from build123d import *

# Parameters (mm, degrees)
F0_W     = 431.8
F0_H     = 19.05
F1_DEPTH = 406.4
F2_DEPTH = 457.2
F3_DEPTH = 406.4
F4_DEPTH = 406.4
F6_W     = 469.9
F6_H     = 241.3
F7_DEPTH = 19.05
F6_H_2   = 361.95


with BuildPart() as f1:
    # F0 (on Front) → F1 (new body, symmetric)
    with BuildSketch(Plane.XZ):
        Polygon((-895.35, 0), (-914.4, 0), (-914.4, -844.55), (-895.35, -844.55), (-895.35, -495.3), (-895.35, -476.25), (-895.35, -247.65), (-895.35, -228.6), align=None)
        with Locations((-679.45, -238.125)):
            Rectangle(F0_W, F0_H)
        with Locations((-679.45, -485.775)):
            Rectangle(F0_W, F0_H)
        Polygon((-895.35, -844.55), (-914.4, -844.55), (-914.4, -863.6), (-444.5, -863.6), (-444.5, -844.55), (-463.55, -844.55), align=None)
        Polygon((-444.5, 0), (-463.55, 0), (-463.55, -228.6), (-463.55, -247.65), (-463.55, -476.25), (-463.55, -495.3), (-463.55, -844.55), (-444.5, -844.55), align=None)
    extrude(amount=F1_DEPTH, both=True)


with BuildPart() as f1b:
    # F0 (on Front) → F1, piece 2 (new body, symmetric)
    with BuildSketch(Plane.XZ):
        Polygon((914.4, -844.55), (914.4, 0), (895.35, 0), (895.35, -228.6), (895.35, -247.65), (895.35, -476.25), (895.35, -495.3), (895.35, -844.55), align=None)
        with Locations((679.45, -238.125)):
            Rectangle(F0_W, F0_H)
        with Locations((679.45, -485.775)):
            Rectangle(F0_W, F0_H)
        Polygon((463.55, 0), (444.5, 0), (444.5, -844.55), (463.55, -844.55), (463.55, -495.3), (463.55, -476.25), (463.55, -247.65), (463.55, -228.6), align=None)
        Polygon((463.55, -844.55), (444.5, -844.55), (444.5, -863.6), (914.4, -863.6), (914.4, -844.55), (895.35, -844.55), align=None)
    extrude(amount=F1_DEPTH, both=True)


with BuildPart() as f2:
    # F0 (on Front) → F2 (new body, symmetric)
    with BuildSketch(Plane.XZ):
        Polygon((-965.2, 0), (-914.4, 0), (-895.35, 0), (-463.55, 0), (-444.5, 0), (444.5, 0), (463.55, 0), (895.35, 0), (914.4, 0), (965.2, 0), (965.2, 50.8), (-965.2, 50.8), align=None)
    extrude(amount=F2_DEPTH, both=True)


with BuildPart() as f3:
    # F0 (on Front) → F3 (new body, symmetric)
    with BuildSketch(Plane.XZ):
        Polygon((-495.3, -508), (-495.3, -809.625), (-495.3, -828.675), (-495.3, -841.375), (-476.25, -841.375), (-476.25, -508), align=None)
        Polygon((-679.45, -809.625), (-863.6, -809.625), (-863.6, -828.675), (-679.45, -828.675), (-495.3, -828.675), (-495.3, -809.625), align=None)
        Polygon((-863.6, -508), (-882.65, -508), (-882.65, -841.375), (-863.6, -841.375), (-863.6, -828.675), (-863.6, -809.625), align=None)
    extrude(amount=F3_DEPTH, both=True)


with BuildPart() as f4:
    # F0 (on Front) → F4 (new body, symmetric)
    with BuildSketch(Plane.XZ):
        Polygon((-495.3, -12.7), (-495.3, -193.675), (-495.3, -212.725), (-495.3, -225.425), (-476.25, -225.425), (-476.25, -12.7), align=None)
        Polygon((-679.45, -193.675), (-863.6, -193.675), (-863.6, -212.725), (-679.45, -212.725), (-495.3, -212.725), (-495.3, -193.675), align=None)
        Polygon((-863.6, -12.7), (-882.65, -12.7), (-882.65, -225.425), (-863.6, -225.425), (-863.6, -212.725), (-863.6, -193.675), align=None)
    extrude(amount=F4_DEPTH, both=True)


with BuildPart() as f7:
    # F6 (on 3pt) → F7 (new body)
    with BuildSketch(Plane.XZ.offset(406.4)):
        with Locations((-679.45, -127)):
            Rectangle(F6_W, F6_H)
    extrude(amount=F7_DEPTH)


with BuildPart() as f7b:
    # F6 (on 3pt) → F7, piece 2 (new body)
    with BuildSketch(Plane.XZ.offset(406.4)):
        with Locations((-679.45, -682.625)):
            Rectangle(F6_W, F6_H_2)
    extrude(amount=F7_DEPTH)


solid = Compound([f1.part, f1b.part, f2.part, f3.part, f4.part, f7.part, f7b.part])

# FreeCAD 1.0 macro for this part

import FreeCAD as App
import Part
import Sketcher
Q = App.Units.Quantity


def add_polygon(sketch, points):
    """Adds a closed chain of lines whose ends are joined by coincident constraints."""
    first, n = sketch.GeometryCount, len(points)
    for a, b in zip(points, points[1:] + points[:1]):
        sketch.addGeometry(Part.LineSegment(App.Vector(*a, 0), App.Vector(*b, 0)), False)
    for i in range(n):
        sketch.addConstraint(Sketcher.Constraint("Coincident", first + i, 2, first + (i + 1) % n, 1))

doc = App.newDocument("Part")
params = doc.addObject("Spreadsheet::Sheet", "Params")
for row, (alias, value) in enumerate([
    ("sketch1_width", "17 in"),
    ("sketch1_height", "34 in"),
    ("sketch1_height2", "9 in"),
    ("sketch1_width2", "18.5 in"),
    ("sketch1_height3", "13.75 in"),
    ("pad1_length", "32 in"),
    ("sketch2_width", "17 in"),
    ("sketch2_height", "9 in"),
    ("sketch2_height2", "34 in"),
    ("sketch2_width2", "18.5 in"),
    ("sketch2_height3", "13.75 in"),
    ("pad2_length", "32 in"),
    ("sketch3_width", "76 in"),
    ("sketch3_height", "2 in"),
    ("pad3_length", "36 in"),
    ("sketch4_width", "14.5 in"),
    ("sketch4_height", "0.5 in"),
    ("sketch4_width2", "0.75 in"),
    ("sketch4_height2", "11.875 in"),
    ("sketch4_height3", "13.125 in"),
    ("pad4_length", "32 in"),
    ("sketch5_width", "14.5 in"),
    ("sketch5_height", "0.5 in"),
    ("sketch5_width2", "0.75 in"),
    ("sketch5_height2", "7.125 in"),
    ("sketch5_height3", "8.375 in"),
    ("pad5_length", "32 in"),
    ("sketch6_width", "18.5 in"),
    ("sketch6_height", "9.5 in"),
    ("pad6_length", "0.75 in"),
    ("sketch7_width", "18.5 in"),
    ("sketch7_height", "14.25 in"),
    ("pad7_length", "0.75 in"),
], start=1):
    params.set(f"A{row}", alias)
    params.set(f"B{row}", "=" + value)
    params.setAlias(f"B{row}", alias)

body = doc.addObject("PartDesign::Body", "Body")

sketch1 = doc.addObject("Sketcher::SketchObject", "Sketch")
body.addObject(sketch1)
sketch1.AttachmentSupport = (doc.XZ_Plane, [""])
sketch1.MapMode = "FlatFace"
add_polygon(sketch1, [(-895, 0), (-914, 0), (-914, -864), (-444, -864), (-444, 0), (-464, 0), (-464, -229), (-895, -229)])
add_polygon(sketch1, [(-464, -845), (-895, -845), (-895, -495), (-464, -495)])
add_polygon(sketch1, [(-464, -476), (-895, -476), (-895, -248), (-464, -248)])
sketch1.addConstraint([
    Sketcher.Constraint("Horizontal", 0),
    Sketcher.Constraint("Vertical", 1),
    Sketcher.Constraint("Horizontal", 2),
    Sketcher.Constraint("Vertical", 3),
    Sketcher.Constraint("Horizontal", 4),
    Sketcher.Constraint("Vertical", 5),
    Sketcher.Constraint("Horizontal", 6),
    Sketcher.Constraint("Vertical", 7),
    Sketcher.Constraint("Horizontal", 8),
    Sketcher.Constraint("Vertical", 9),
    Sketcher.Constraint("Horizontal", 10),
    Sketcher.Constraint("Vertical", 11),
    Sketcher.Constraint("Horizontal", 12),
    Sketcher.Constraint("Vertical", 13),
    Sketcher.Constraint("Horizontal", 14),
    Sketcher.Constraint("Vertical", 15),
    Sketcher.Constraint("PointOnObject", 0, 2, -1),
    Sketcher.Constraint("PointOnObject", 3, 2, -1),
    Sketcher.Constraint("Vertical", 7, 2, 8, 2),
    Sketcher.Constraint("Vertical", 5, 2, 10, 2),
    Sketcher.Constraint("Vertical", 9, 2, 12, 2),
    Sketcher.Constraint("Vertical", 11, 2, 14, 2),
    Sketcher.Constraint("Equal", 0, 4),
    Sketcher.Constraint("Equal", 7, 13),
    Sketcher.Constraint("DistanceX", 6, 2, 6, 1, Q("17 in")),
    Sketcher.Constraint("DistanceY", 1, 2, 1, 1, Q("34 in")),
    Sketcher.Constraint("DistanceY", 5, 2, 5, 1, Q("9 in")),
    Sketcher.Constraint("DistanceX", 2, 1, 2, 2, Q("18.5 in")),
    Sketcher.Constraint("DistanceX", 0, 2, -1, 1, Q("36 in")),
    Sketcher.Constraint("DistanceY", 9, 1, 9, 2, Q("13.75 in")),
    Sketcher.Constraint("DistanceY", 9, 2, -1, 1, Q("19.5 in")),
    Sketcher.Constraint("DistanceY", 8, 2, 12, 2, Q("14.5 in")),
])
sketch1.setExpression("Constraints[40]", "Params.sketch1_width")
sketch1.setExpression("Constraints[41]", "Params.sketch1_height")
sketch1.setExpression("Constraints[42]", "Params.sketch1_height2")
sketch1.setExpression("Constraints[43]", "Params.sketch1_width2")
sketch1.setExpression("Constraints[45]", "Params.sketch1_height3")
pad1 = doc.addObject("PartDesign::Pad", "Pad")
body.addObject(pad1)
pad1.Profile = sketch1
pad1.setExpression("Length", "Params.pad1_length")
pad1.Midplane = True
body2 = doc.addObject("PartDesign::Body", "Body001")

sketch2 = doc.addObject("Sketcher::SketchObject", "Sketch001")
body2.addObject(sketch2)
sketch2.AttachmentSupport = (doc.getObject("XZ_Plane001"), [""])
sketch2.MapMode = "FlatFace"
add_polygon(sketch2, [(914, 0), (895, 0), (895, -229), (464, -229), (464, 0), (444, 0), (444, -864), (914, -864)])
add_polygon(sketch2, [(464, -845), (464, -495), (895, -495), (895, -845)])
add_polygon(sketch2, [(464, -248), (895, -248), (895, -476), (464, -476)])
sketch2.addConstraint([
    Sketcher.Constraint("Horizontal", 0),
    Sketcher.Constraint("Vertical", 1),
    Sketcher.Constraint("Horizontal", 2),
    Sketcher.Constraint("Vertical", 3),
    Sketcher.Constraint("Horizontal", 4),
    Sketcher.Constraint("Vertical", 5),
    Sketcher.Constraint("Horizontal", 6),
    Sketcher.Constraint("Vertical", 7),
    Sketcher.Constraint("Vertical", 8),
    Sketcher.Constraint("Horizontal", 9),
    Sketcher.Constraint("Vertical", 10),
    Sketcher.Constraint("Horizontal", 11),
    Sketcher.Constraint("Horizontal", 12),
    Sketcher.Constraint("Vertical", 13),
    Sketcher.Constraint("Horizontal", 14),
    Sketcher.Constraint("Vertical", 15),
    Sketcher.Constraint("PointOnObject", 0, 2, -1),
    Sketcher.Constraint("PointOnObject", 3, 2, -1),
    Sketcher.Constraint("Vertical", 3, 2, 8, 2),
    Sketcher.Constraint("Vertical", 1, 2, 9, 2),
    Sketcher.Constraint("Vertical", 10, 2, 12, 2),
    Sketcher.Constraint("Vertical", 11, 2, 14, 2),
    Sketcher.Constraint("Equal", 0, 4),
    Sketcher.Constraint("Equal", 3, 13),
    Sketcher.Constraint("DistanceX", 2, 2, 2, 1, Q("17 in")),
    Sketcher.Constraint("DistanceY", 1, 2, 1, 1, Q("9 in")),
    Sketcher.Constraint("DistanceY", 5, 2, 5, 1, Q("34 in")),
    Sketcher.Constraint("DistanceX", 6, 1, 6, 2, Q("18.5 in")),
    Sketcher.Constraint("DistanceX", -1, 1, 6, 2, Q("36 in")),
    Sketcher.Constraint("DistanceY", 8, 1, 8, 2, Q("13.75 in")),
    Sketcher.Constraint("DistanceY", 8, 2, -1, 1, Q("19.5 in")),
    Sketcher.Constraint("DistanceY", 10, 2, 13, 2, Q("14.5 in")),
])
sketch2.setExpression("Constraints[40]", "Params.sketch2_width")
sketch2.setExpression("Constraints[41]", "Params.sketch2_height")
sketch2.setExpression("Constraints[42]", "Params.sketch2_height2")
sketch2.setExpression("Constraints[43]", "Params.sketch2_width2")
sketch2.setExpression("Constraints[45]", "Params.sketch2_height3")
pad2 = doc.addObject("PartDesign::Pad", "Pad001")
body2.addObject(pad2)
pad2.Profile = sketch2
pad2.setExpression("Length", "Params.pad2_length")
pad2.Midplane = True
body3 = doc.addObject("PartDesign::Body", "Body002")

sketch3 = doc.addObject("Sketcher::SketchObject", "Sketch002")
body3.addObject(sketch3)
sketch3.AttachmentSupport = (doc.getObject("XZ_Plane002"), [""])
sketch3.MapMode = "FlatFace"
add_polygon(sketch3, [(-965, 0), (965, 0), (965, 51), (-965, 51)])
sketch3.addConstraint([
    Sketcher.Constraint("Horizontal", 0),
    Sketcher.Constraint("Vertical", 1),
    Sketcher.Constraint("Horizontal", 2),
    Sketcher.Constraint("Vertical", 3),
    Sketcher.Constraint("Symmetric", 0, 2, 3, 2, -1, 1),
    Sketcher.Constraint("DistanceX", 0, 1, 0, 2, Q("76 in")),
    Sketcher.Constraint("DistanceY", 1, 1, 1, 2, Q("2 in")),
])
sketch3.setExpression("Constraints[9]", "Params.sketch3_width")
sketch3.setExpression("Constraints[10]", "Params.sketch3_height")
pad3 = doc.addObject("PartDesign::Pad", "Pad002")
body3.addObject(pad3)
pad3.Profile = sketch3
pad3.setExpression("Length", "Params.pad3_length")
pad3.Midplane = True
body4 = doc.addObject("PartDesign::Body", "Body003")

sketch4 = doc.addObject("Sketcher::SketchObject", "Sketch003")
body4.addObject(sketch4)
sketch4.AttachmentSupport = (doc.getObject("XZ_Plane003"), [""])
sketch4.MapMode = "FlatFace"
add_polygon(sketch4, [(-495, -508), (-495, -810), (-864, -810), (-864, -508), (-883, -508), (-883, -841), (-864, -841), (-864, -829), (-495, -829), (-495, -841), (-476, -841), (-476, -508)])
sketch4.addConstraint([
    Sketcher.Constraint("Vertical", 0),
    Sketcher.Constraint("Horizontal", 1),
    Sketcher.Constraint("Vertical", 2),
    Sketcher.Constraint("Horizontal", 3),
    Sketcher.Constraint("Vertical", 4),
    Sketcher.Constraint("Horizontal", 5),
    Sketcher.Constraint("Vertical", 6),
    Sketcher.Constraint("Horizontal", 7),
    Sketcher.Constraint("Vertical", 8),
    Sketcher.Constraint("Horizontal", 9),
    Sketcher.Constraint("Vertical", 10),
    Sketcher.Constraint("Horizontal", 11),
    Sketcher.Constraint("Horizontal", 5, 2, 8, 2),
    Sketcher.Constraint("Horizontal", 3, 2, 10, 2),
    Sketcher.Constraint("Vertical", 2, 2, 5, 2),
    Sketcher.Constraint("Vertical", 0, 2, 7, 2),
    Sketcher.Constraint("Equal", 5, 9),
    Sketcher.Constraint("DistanceX", 1, 2, 1, 1, Q("14.5 in")),
    Sketcher.Constraint("DistanceY", 6, 1, 6, 2, Q("0.5 in")),
    Sketcher.Constraint("DistanceX", 1, 2, -1, 1, Q("34 in")),
    Sketcher.Constraint("DistanceY", 2, 2, -1, 1, Q("20 in")),
    Sketcher.Constraint("DistanceX", 3, 2, 3, 1, Q("0.75 in")),
    Sketcher.Constraint("DistanceY", 0, 2, 0, 1, Q("11.875 in")),
    Sketcher.Constraint("DistanceY", 4, 2, 4, 1, Q("13.125 in")),
])
sketch4.setExpression("Constraints[29]", "Params.sketch4_width")
sketch4.setExpression("Constraints[30]", "Params.sketch4_height")
sketch4.setExpression("Constraints[33]", "Params.sketch4_width2")
sketch4.setExpression("Constraints[34]", "Params.sketch4_height2")
sketch4.setExpression("Constraints[35]", "Params.sketch4_height3")
pad4 = doc.addObject("PartDesign::Pad", "Pad003")
body4.addObject(pad4)
pad4.Profile = sketch4
pad4.setExpression("Length", "Params.pad4_length")
pad4.Midplane = True
body5 = doc.addObject("PartDesign::Body", "Body004")

sketch5 = doc.addObject("Sketcher::SketchObject", "Sketch004")
body5.addObject(sketch5)
sketch5.AttachmentSupport = (doc.getObject("XZ_Plane004"), [""])
sketch5.MapMode = "FlatFace"
add_polygon(sketch5, [(-495, -13), (-495, -194), (-864, -194), (-864, -13), (-883, -13), (-883, -225), (-864, -225), (-864, -213), (-495, -213), (-495, -225), (-476, -225), (-476, -13)])
sketch5.addConstraint([
    Sketcher.Constraint("Vertical", 0),
    Sketcher.Constraint("Horizontal", 1),
    Sketcher.Constraint("Vertical", 2),
    Sketcher.Constraint("Horizontal", 3),
    Sketcher.Constraint("Vertical", 4),
    Sketcher.Constraint("Horizontal", 5),
    Sketcher.Constraint("Vertical", 6),
    Sketcher.Constraint("Horizontal", 7),
    Sketcher.Constraint("Vertical", 8),
    Sketcher.Constraint("Horizontal", 9),
    Sketcher.Constraint("Vertical", 10),
    Sketcher.Constraint("Horizontal", 11),
    Sketcher.Constraint("Horizontal", 5, 2, 8, 2),
    Sketcher.Constraint("Horizontal", 3, 2, 10, 2),
    Sketcher.Constraint("Vertical", 2, 2, 5, 2),
    Sketcher.Constraint("Vertical", 0, 2, 7, 2),
    Sketcher.Constraint("Equal", 5, 9),
    Sketcher.Constraint("DistanceX", 1, 2, 1, 1, Q("14.5 in")),
    Sketcher.Constraint("DistanceY", 6, 1, 6, 2, Q("0.5 in")),
    Sketcher.Constraint("DistanceX", 1, 2, -1, 1, Q("34 in")),
    Sketcher.Constraint("DistanceX", 3, 2, 3, 1, Q("0.75 in")),
    Sketcher.Constraint("DistanceY", 2, 2, -1, 1, Q("0.5 in")),
    Sketcher.Constraint("DistanceY", 0, 2, 0, 1, Q("7.125 in")),
    Sketcher.Constraint("DistanceY", 4, 2, 4, 1, Q("8.375 in")),
])
sketch5.setExpression("Constraints[29]", "Params.sketch5_width")
sketch5.setExpression("Constraints[30]", "Params.sketch5_height")
sketch5.setExpression("Constraints[32]", "Params.sketch5_width2")
sketch5.setExpression("Constraints[34]", "Params.sketch5_height2")
sketch5.setExpression("Constraints[35]", "Params.sketch5_height3")
pad5 = doc.addObject("PartDesign::Pad", "Pad004")
body5.addObject(pad5)
pad5.Profile = sketch5
pad5.setExpression("Length", "Params.pad5_length")
pad5.Midplane = True
body6 = doc.addObject("PartDesign::Body", "Body005")

sketch6 = doc.addObject("Sketcher::SketchObject", "Sketch005")
body6.addObject(sketch6)
sketch6.AttachmentSupport = (doc.getObject("XZ_Plane005"), [""])
sketch6.MapMode = "FlatFace"
sketch6.AttachmentOffset = App.Placement(App.Vector(0, 0, 16 * 25.4), App.Rotation())
add_polygon(sketch6, [(-914, -6), (-914, -248), (-444, -248), (-444, -6)])
sketch6.addConstraint([
    Sketcher.Constraint("Vertical", 0),
    Sketcher.Constraint("Horizontal", 1),
    Sketcher.Constraint("Vertical", 2),
    Sketcher.Constraint("Horizontal", 3),
    Sketcher.Constraint("DistanceX", 1, 1, 1, 2, Q("18.5 in")),
    Sketcher.Constraint("DistanceY", 0, 2, 0, 1, Q("9.5 in")),
    Sketcher.Constraint("DistanceX", 0, 2, -1, 1, Q("36 in")),
    Sketcher.Constraint("DistanceY", 0, 2, -1, 1, Q("9.75 in")),
])
sketch6.setExpression("Constraints[8]", "Params.sketch6_width")
sketch6.setExpression("Constraints[9]", "Params.sketch6_height")
pad6 = doc.addObject("PartDesign::Pad", "Pad005")
body6.addObject(pad6)
pad6.Profile = sketch6
pad6.setExpression("Length", "Params.pad6_length")
body7 = doc.addObject("PartDesign::Body", "Body006")

sketch7 = doc.addObject("Sketcher::SketchObject", "Sketch006")
body7.addObject(sketch7)
sketch7.AttachmentSupport = (doc.getObject("XZ_Plane006"), [""])
sketch7.MapMode = "FlatFace"
sketch7.AttachmentOffset = App.Placement(App.Vector(0, 0, 16 * 25.4), App.Rotation())
add_polygon(sketch7, [(-914, -502), (-914, -864), (-444, -864), (-444, -502)])
sketch7.addConstraint([
    Sketcher.Constraint("Vertical", 0),
    Sketcher.Constraint("Horizontal", 1),
    Sketcher.Constraint("Vertical", 2),
    Sketcher.Constraint("Horizontal", 3),
    Sketcher.Constraint("DistanceX", 1, 1, 1, 2, Q("18.5 in")),
    Sketcher.Constraint("DistanceX", 0, 2, -1, 1, Q("36 in")),
    Sketcher.Constraint("DistanceY", 0, 2, -1, 1, Q("34 in")),
    Sketcher.Constraint("DistanceY", 0, 2, 0, 1, Q("14.25 in")),
])
sketch7.setExpression("Constraints[8]", "Params.sketch7_width")
sketch7.setExpression("Constraints[11]", "Params.sketch7_height")
pad7 = doc.addObject("PartDesign::Pad", "Pad006")
body7.addObject(pad7)
pad7.Profile = sketch7
pad7.setExpression("Length", "Params.pad7_length")

doc.recompute()
